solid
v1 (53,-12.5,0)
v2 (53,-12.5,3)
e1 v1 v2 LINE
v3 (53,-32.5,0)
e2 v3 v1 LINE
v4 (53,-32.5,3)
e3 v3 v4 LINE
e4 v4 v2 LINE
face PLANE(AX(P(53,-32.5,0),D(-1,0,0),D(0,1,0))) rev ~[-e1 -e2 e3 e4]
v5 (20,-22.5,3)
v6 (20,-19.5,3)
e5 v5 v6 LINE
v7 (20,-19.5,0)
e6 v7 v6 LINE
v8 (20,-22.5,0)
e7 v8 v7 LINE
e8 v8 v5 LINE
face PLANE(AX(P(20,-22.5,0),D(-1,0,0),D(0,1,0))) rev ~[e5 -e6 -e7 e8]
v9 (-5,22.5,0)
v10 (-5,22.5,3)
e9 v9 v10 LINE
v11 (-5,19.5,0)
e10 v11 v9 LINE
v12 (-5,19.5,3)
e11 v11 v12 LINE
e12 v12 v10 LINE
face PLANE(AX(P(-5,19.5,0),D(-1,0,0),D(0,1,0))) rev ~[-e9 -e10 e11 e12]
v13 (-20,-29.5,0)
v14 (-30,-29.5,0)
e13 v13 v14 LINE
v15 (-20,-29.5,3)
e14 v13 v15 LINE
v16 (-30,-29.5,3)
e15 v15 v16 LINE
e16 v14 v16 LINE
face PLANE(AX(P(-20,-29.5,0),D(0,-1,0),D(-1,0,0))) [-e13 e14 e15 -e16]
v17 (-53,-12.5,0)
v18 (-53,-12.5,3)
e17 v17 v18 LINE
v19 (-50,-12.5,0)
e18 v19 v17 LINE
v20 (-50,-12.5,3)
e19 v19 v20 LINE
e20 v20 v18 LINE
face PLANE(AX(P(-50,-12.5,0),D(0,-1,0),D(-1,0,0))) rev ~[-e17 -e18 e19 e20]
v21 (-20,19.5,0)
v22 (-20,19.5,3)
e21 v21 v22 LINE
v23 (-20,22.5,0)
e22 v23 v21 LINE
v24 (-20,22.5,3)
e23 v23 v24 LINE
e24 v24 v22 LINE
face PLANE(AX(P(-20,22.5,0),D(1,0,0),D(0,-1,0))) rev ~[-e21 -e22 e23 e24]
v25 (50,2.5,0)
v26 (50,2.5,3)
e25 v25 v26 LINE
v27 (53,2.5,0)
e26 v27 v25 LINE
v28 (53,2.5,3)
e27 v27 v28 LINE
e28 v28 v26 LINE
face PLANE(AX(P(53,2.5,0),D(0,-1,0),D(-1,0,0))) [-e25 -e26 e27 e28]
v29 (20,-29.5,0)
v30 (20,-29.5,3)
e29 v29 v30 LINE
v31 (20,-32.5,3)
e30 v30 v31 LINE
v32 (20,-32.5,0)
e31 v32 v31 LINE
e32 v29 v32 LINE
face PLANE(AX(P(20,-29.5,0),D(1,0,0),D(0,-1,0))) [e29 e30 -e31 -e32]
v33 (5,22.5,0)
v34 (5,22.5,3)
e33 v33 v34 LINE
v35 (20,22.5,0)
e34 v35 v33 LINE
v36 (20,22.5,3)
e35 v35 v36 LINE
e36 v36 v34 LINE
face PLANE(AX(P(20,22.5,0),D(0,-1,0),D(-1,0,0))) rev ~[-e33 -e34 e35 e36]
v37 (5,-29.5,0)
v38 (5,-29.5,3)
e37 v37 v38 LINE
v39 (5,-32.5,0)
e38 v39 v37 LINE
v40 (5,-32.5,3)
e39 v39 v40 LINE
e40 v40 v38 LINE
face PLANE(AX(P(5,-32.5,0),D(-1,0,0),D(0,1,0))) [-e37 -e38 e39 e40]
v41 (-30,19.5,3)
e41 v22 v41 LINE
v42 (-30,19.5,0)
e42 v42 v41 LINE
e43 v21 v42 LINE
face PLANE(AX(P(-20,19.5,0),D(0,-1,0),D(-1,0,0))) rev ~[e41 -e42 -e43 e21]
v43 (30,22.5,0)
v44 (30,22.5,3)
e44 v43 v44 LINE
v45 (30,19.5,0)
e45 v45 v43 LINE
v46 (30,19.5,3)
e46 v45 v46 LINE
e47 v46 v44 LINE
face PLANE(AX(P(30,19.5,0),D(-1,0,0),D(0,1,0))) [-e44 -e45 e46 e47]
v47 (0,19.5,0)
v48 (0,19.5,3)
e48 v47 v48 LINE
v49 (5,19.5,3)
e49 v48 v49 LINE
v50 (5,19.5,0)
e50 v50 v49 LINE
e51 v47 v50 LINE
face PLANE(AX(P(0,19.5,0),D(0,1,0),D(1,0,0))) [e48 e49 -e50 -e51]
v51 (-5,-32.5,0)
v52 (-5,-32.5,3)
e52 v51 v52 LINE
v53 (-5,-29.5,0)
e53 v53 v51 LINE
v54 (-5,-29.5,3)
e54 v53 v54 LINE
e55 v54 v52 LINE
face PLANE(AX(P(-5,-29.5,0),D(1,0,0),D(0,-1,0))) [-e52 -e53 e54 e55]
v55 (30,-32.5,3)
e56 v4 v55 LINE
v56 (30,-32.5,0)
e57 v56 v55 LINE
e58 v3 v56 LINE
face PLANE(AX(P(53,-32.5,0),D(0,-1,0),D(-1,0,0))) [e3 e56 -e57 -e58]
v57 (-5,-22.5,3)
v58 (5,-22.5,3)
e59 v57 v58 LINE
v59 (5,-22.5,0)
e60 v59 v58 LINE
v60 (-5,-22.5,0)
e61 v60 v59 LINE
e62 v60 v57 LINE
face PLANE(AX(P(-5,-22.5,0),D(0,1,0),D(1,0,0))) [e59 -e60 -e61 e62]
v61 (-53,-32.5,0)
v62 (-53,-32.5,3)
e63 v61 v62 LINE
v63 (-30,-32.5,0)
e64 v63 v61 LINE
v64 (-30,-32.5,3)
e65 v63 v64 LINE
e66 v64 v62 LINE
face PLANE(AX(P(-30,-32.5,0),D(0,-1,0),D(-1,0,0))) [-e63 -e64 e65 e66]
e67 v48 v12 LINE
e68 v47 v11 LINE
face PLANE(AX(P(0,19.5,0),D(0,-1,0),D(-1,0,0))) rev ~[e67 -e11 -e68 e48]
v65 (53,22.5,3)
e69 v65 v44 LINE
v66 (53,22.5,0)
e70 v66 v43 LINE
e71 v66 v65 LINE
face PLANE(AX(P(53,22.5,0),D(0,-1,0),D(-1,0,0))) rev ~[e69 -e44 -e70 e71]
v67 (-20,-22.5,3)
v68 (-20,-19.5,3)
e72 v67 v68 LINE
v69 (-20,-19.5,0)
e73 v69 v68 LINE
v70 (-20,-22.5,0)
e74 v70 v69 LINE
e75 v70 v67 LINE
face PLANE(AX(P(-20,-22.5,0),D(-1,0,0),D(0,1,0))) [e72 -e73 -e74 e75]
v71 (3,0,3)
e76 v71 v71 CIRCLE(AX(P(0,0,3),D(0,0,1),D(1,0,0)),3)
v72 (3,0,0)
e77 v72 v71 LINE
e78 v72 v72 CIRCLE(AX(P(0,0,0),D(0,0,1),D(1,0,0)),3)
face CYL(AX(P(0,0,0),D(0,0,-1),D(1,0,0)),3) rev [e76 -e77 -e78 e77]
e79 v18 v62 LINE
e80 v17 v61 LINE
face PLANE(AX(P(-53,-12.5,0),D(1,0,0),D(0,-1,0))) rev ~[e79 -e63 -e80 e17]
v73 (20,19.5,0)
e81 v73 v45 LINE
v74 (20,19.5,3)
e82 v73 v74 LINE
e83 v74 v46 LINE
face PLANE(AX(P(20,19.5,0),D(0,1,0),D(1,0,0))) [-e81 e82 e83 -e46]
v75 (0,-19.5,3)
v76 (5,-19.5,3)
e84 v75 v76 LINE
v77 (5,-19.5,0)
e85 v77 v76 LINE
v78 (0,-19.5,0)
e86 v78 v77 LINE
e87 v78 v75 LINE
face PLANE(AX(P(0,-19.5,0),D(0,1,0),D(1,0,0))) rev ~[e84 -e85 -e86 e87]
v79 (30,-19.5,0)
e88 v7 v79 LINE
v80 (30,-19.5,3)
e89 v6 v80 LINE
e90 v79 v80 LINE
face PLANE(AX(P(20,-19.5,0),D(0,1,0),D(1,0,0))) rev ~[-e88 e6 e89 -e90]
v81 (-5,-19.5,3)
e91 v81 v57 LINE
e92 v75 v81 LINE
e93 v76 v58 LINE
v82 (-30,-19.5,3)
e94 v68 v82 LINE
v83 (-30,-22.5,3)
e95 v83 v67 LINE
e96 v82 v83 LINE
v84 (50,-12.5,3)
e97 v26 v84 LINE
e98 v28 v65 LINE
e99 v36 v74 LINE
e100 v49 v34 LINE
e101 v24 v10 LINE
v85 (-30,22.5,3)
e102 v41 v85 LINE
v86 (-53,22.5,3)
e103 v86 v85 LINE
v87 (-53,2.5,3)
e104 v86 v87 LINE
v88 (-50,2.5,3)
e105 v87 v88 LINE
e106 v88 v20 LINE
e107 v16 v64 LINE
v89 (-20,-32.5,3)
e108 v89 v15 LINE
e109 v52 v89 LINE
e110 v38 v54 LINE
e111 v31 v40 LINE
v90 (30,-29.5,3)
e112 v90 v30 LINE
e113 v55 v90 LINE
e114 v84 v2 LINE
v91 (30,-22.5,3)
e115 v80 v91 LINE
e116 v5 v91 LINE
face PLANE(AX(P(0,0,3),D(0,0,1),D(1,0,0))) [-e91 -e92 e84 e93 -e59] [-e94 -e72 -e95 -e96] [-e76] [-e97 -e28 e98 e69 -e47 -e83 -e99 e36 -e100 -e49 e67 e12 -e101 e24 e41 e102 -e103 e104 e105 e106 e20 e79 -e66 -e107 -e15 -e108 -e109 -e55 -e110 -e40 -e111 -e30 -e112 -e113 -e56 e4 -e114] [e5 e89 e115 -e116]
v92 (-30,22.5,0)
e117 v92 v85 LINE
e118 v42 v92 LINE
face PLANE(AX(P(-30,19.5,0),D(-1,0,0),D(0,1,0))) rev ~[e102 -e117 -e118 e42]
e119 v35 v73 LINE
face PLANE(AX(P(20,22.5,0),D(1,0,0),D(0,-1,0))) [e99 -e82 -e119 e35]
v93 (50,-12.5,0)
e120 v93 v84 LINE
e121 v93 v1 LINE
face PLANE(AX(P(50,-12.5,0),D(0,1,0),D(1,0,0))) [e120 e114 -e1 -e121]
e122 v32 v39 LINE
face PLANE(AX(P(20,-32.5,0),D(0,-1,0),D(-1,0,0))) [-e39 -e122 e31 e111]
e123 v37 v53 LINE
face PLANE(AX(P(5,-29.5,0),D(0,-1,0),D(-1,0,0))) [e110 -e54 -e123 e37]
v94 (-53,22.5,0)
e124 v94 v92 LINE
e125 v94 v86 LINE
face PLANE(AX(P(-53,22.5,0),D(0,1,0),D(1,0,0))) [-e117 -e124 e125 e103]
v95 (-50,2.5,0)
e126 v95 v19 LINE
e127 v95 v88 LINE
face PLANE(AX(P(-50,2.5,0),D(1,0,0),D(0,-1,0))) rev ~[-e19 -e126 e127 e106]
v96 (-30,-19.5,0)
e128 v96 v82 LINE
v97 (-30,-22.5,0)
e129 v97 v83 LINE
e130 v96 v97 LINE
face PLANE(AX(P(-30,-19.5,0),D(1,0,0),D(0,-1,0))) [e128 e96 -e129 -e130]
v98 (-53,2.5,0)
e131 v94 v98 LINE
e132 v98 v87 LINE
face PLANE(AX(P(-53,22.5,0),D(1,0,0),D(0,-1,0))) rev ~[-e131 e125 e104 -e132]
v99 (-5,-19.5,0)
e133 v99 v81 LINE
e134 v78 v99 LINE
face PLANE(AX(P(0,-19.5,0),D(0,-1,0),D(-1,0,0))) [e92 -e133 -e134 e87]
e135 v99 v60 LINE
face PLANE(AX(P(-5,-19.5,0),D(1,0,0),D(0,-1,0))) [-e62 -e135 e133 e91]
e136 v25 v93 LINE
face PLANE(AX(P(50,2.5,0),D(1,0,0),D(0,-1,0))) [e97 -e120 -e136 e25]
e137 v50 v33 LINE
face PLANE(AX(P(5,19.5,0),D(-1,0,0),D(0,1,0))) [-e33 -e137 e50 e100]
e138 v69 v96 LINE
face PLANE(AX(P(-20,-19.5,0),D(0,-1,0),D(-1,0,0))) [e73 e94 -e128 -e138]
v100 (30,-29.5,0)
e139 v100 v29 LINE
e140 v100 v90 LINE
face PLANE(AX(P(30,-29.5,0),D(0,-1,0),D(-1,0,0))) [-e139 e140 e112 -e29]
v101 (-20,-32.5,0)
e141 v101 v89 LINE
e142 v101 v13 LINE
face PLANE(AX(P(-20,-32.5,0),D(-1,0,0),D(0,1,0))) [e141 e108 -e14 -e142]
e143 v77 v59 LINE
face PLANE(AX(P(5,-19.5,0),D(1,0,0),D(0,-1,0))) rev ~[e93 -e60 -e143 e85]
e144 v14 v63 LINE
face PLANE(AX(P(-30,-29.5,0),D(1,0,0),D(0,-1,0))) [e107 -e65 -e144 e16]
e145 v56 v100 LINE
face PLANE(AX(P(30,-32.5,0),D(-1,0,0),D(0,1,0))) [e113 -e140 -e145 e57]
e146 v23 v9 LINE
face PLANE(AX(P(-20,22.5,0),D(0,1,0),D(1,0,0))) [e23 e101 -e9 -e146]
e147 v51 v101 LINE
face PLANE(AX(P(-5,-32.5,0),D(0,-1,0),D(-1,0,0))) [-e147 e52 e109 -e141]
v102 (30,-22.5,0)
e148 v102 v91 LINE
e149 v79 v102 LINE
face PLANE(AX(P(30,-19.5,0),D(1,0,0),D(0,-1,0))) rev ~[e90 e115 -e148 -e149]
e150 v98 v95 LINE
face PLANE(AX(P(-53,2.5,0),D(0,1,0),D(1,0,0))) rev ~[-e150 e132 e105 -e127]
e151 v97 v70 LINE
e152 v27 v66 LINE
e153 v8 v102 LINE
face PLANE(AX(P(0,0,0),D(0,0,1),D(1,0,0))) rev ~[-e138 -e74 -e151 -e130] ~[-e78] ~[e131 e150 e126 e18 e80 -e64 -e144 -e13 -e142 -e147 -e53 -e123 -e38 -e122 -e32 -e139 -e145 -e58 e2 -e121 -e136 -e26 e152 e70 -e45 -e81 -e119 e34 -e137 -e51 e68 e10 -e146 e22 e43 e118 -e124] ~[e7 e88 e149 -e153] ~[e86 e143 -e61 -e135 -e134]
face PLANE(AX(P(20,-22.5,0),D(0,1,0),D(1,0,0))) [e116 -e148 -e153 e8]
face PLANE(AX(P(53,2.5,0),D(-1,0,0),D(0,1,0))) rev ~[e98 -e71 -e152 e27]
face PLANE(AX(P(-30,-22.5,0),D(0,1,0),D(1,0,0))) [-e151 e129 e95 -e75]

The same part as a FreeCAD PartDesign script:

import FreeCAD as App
import Part
import Sketcher
Q = App.Units.Quantity

doc = App.newDocument("Part")
params = doc.addObject("Spreadsheet::Sheet", "Params")
for row, (alias, value) in enumerate([
    ("sketch1_diameter", "6 mm"),
    ("sketch1_width", "23 mm"),
    ("sketch1_width2", "3 mm"),
    ("sketch1_width3", "10 mm"),
    ("sketch1_width4", "15 mm"),
    ("pad1_length", "3 mm"),
], start=1):
    params.set(f"A{row}", alias)
    params.set(f"B{row}", "=" + value)
    params.setAlias(f"B{row}", alias)

body = doc.addObject("PartDesign::Body", "Body")

# Sketch on XY plane
sketch1 = body.newObject("Sketcher::SketchObject", "Sketch")
sketch1.AttachmentSupport = (doc.getObject("XY_Plane"), [""])
sketch1.MapMode = "FlatFace"
sketch1.addGeometry([
    Part.LineSegment(App.Vector(-30, 22.5, 0), App.Vector(-53, 22.5, 0)),  # 0
    Part.LineSegment(App.Vector(-53, 22.5, 0), App.Vector(-53, 2.5, 0)),  # 1
    Part.LineSegment(App.Vector(-53, 2.5, 0), App.Vector(-50, 2.5, 0)),  # 2
    Part.LineSegment(App.Vector(-50, 2.5, 0), App.Vector(-50, -12.5, 0)),  # 3
    Part.LineSegment(App.Vector(-50, -12.5, 0), App.Vector(-53, -12.5, 0)),  # 4
    Part.LineSegment(App.Vector(-53, -12.5, 0), App.Vector(-53, -32.5, 0)),  # 5
    Part.LineSegment(App.Vector(-53, -32.5, 0), App.Vector(-30, -32.5, 0)),  # 6
    Part.LineSegment(App.Vector(-30, -32.5, 0), App.Vector(-30, -29.5, 0)),  # 7
    Part.LineSegment(App.Vector(-30, -29.5, 0), App.Vector(-20, -29.5, 0)),  # 8
    Part.LineSegment(App.Vector(-20, -29.5, 0), App.Vector(-20, -32.5, 0)),  # 9
    Part.LineSegment(App.Vector(-20, -32.5, 0), App.Vector(-5, -32.5, 0)),  # 10
    Part.LineSegment(App.Vector(-5, -32.5, 0), App.Vector(-5, -29.5, 0)),  # 11
    Part.LineSegment(App.Vector(-5, -29.5, 0), App.Vector(5, -29.5, 0)),  # 12
    Part.LineSegment(App.Vector(5, -29.5, 0), App.Vector(5, -32.5, 0)),  # 13
    Part.LineSegment(App.Vector(5, -32.5, 0), App.Vector(20, -32.5, 0)),  # 14
    Part.LineSegment(App.Vector(20, -32.5, 0), App.Vector(20, -29.5, 0)),  # 15
    Part.LineSegment(App.Vector(20, -29.5, 0), App.Vector(30, -29.5, 0)),  # 16
    Part.LineSegment(App.Vector(30, -29.5, 0), App.Vector(30, -32.5, 0)),  # 17
    Part.LineSegment(App.Vector(30, -32.5, 0), App.Vector(53, -32.5, 0)),  # 18
    Part.LineSegment(App.Vector(53, -32.5, 0), App.Vector(53, -12.5, 0)),  # 19
    Part.LineSegment(App.Vector(53, -12.5, 0), App.Vector(50, -12.5, 0)),  # 20
    Part.LineSegment(App.Vector(50, -12.5, 0), App.Vector(50, 2.5, 0)),  # 21
    Part.LineSegment(App.Vector(50, 2.5, 0), App.Vector(53, 2.5, 0)),  # 22
    Part.LineSegment(App.Vector(53, 2.5, 0), App.Vector(53, 22.5, 0)),  # 23
    Part.LineSegment(App.Vector(53, 22.5, 0), App.Vector(30, 22.5, 0)),  # 24
    Part.LineSegment(App.Vector(30, 22.5, 0), App.Vector(30, 19.5, 0)),  # 25
    Part.LineSegment(App.Vector(30, 19.5, 0), App.Vector(20, 19.5, 0)),  # 26
    Part.LineSegment(App.Vector(20, 19.5, 0), App.Vector(20, 22.5, 0)),  # 27
    Part.LineSegment(App.Vector(20, 22.5, 0), App.Vector(5, 22.5, 0)),  # 28
    Part.LineSegment(App.Vector(5, 22.5, 0), App.Vector(5, 19.5, 0)),  # 29
    Part.LineSegment(App.Vector(5, 19.5, 0), App.Vector(-5, 19.5, 0)),  # 30
    Part.LineSegment(App.Vector(-5, 19.5, 0), App.Vector(-5, 22.5, 0)),  # 31
    Part.LineSegment(App.Vector(-5, 22.5, 0), App.Vector(-20, 22.5, 0)),  # 32
    Part.LineSegment(App.Vector(-20, 22.5, 0), App.Vector(-20, 19.5, 0)),  # 33
    Part.LineSegment(App.Vector(-20, 19.5, 0), App.Vector(-30, 19.5, 0)),  # 34
    Part.LineSegment(App.Vector(-30, 19.5, 0), App.Vector(-30, 22.5, 0)),  # 35
    Part.LineSegment(App.Vector(-20, -19.5, 0), App.Vector(-20, -22.5, 0)),  # 36
    Part.LineSegment(App.Vector(-20, -22.5, 0), App.Vector(-30, -22.5, 0)),  # 37
    Part.LineSegment(App.Vector(-30, -22.5, 0), App.Vector(-30, -19.5, 0)),  # 38
    Part.LineSegment(App.Vector(-30, -19.5, 0), App.Vector(-20, -19.5, 0)),  # 39
    Part.LineSegment(App.Vector(-5, -19.5, 0), App.Vector(5, -19.5, 0)),  # 40
    Part.LineSegment(App.Vector(5, -19.5, 0), App.Vector(5, -22.5, 0)),  # 41
    Part.LineSegment(App.Vector(5, -22.5, 0), App.Vector(-5, -22.5, 0)),  # 42
    Part.LineSegment(App.Vector(-5, -22.5, 0), App.Vector(-5, -19.5, 0)),  # 43
    Part.LineSegment(App.Vector(30, -22.5, 0), App.Vector(20, -22.5, 0)),  # 44
    Part.LineSegment(App.Vector(20, -22.5, 0), App.Vector(20, -19.5, 0)),  # 45
    Part.LineSegment(App.Vector(20, -19.5, 0), App.Vector(30, -19.5, 0)),  # 46
    Part.LineSegment(App.Vector(30, -19.5, 0), App.Vector(30, -22.5, 0)),  # 47
    Part.Circle(App.Vector(0, 0, 0), App.Vector(0, 0, 1), 3),  # 48
], False)
sketch1.addConstraint([
    Sketcher.Constraint("Coincident", 0, 2, 1, 1),
    Sketcher.Constraint("Coincident", 1, 2, 2, 1),
    Sketcher.Constraint("Coincident", 2, 2, 3, 1),
    Sketcher.Constraint("Coincident", 3, 2, 4, 1),
    Sketcher.Constraint("Coincident", 4, 2, 5, 1),
    Sketcher.Constraint("Coincident", 5, 2, 6, 1),
    Sketcher.Constraint("Coincident", 6, 2, 7, 1),
    Sketcher.Constraint("Coincident", 7, 2, 8, 1),
    Sketcher.Constraint("Coincident", 8, 2, 9, 1),
    Sketcher.Constraint("Coincident", 9, 2, 10, 1),
    Sketcher.Constraint("Coincident", 10, 2, 11, 1),
    Sketcher.Constraint("Coincident", 11, 2, 12, 1),
    Sketcher.Constraint("Coincident", 12, 2, 13, 1),
    Sketcher.Constraint("Coincident", 13, 2, 14, 1),
    Sketcher.Constraint("Coincident", 14, 2, 15, 1),
    Sketcher.Constraint("Coincident", 15, 2, 16, 1),
    Sketcher.Constraint("Coincident", 16, 2, 17, 1),
    Sketcher.Constraint("Coincident", 17, 2, 18, 1),
    Sketcher.Constraint("Coincident", 18, 2, 19, 1),
    Sketcher.Constraint("Coincident", 19, 2, 20, 1),
    Sketcher.Constraint("Coincident", 20, 2, 21, 1),
    Sketcher.Constraint("Coincident", 21, 2, 22, 1),
    Sketcher.Constraint("Coincident", 22, 2, 23, 1),
    Sketcher.Constraint("Coincident", 23, 2, 24, 1),
    Sketcher.Constraint("Coincident", 24, 2, 25, 1),
    Sketcher.Constraint("Coincident", 25, 2, 26, 1),
    Sketcher.Constraint("Coincident", 26, 2, 27, 1),
    Sketcher.Constraint("Coincident", 27, 2, 28, 1),
    Sketcher.Constraint("Coincident", 28, 2, 29, 1),
    Sketcher.Constraint("Coincident", 29, 2, 30, 1),
    Sketcher.Constraint("Coincident", 30, 2, 31, 1),
    Sketcher.Constraint("Coincident", 31, 2, 32, 1),
    Sketcher.Constraint("Coincident", 32, 2, 33, 1),
    Sketcher.Constraint("Coincident", 33, 2, 34, 1),
    Sketcher.Constraint("Coincident", 34, 2, 35, 1),
    Sketcher.Constraint("Coincident", 35, 2, 0, 1),
    Sketcher.Constraint("Coincident", 36, 2, 37, 1),
    Sketcher.Constraint("Coincident", 37, 2, 38, 1),
    Sketcher.Constraint("Coincident", 38, 2, 39, 1),
    Sketcher.Constraint("Coincident", 39, 2, 36, 1),
    Sketcher.Constraint("Coincident", 40, 2, 41, 1),
    Sketcher.Constraint("Coincident", 41, 2, 42, 1),
    Sketcher.Constraint("Coincident", 42, 2, 43, 1),
    Sketcher.Constraint("Coincident", 43, 2, 40, 1),
    Sketcher.Constraint("Coincident", 44, 2, 45, 1),
    Sketcher.Constraint("Coincident", 45, 2, 46, 1),
    Sketcher.Constraint("Coincident", 46, 2, 47, 1),
    Sketcher.Constraint("Coincident", 47, 2, 44, 1),
    Sketcher.Constraint("Horizontal", 0),
    Sketcher.Constraint("Vertical", 1),
    Sketcher.Constraint("Horizontal", 2),
    Sketcher.Constraint("Vertical", 3),
    Sketcher.Constraint("Horizontal", 4),
    Sketcher.Constraint("Vertical", 5),
    Sketcher.Constraint("Horizontal", 6),
    Sketcher.Constraint("Vertical", 7),
    Sketcher.Constraint("Horizontal", 8),
    Sketcher.Constraint("Vertical", 9),
    Sketcher.Constraint("Horizontal", 10),
    Sketcher.Constraint("Vertical", 11),
    Sketcher.Constraint("Horizontal", 12),
    Sketcher.Constraint("Vertical", 13),
    Sketcher.Constraint("Horizontal", 14),
    Sketcher.Constraint("Vertical", 15),
    Sketcher.Constraint("Horizontal", 16),
    Sketcher.Constraint("Vertical", 17),
    Sketcher.Constraint("Horizontal", 18),
    Sketcher.Constraint("Vertical", 19),
    Sketcher.Constraint("Horizontal", 20),
    Sketcher.Constraint("Vertical", 21),
    Sketcher.Constraint("Horizontal", 22),
    Sketcher.Constraint("Vertical", 23),
    Sketcher.Constraint("Horizontal", 24),
    Sketcher.Constraint("Vertical", 25),
    Sketcher.Constraint("Horizontal", 26),
    Sketcher.Constraint("Vertical", 27),
    Sketcher.Constraint("Horizontal", 28),
    Sketcher.Constraint("Vertical", 29),
    Sketcher.Constraint("Horizontal", 30),
    Sketcher.Constraint("Vertical", 31),
    Sketcher.Constraint("Horizontal", 32),
    Sketcher.Constraint("Vertical", 33),
    Sketcher.Constraint("Horizontal", 34),
    Sketcher.Constraint("Vertical", 35),
    Sketcher.Constraint("Vertical", 36),
    Sketcher.Constraint("Horizontal", 37),
    Sketcher.Constraint("Vertical", 38),
    Sketcher.Constraint("Horizontal", 39),
    Sketcher.Constraint("Horizontal", 40),
    Sketcher.Constraint("Vertical", 41),
    Sketcher.Constraint("Horizontal", 42),
    Sketcher.Constraint("Vertical", 43),
    Sketcher.Constraint("Horizontal", 44),
    Sketcher.Constraint("Vertical", 45),
    Sketcher.Constraint("Horizontal", 46),
    Sketcher.Constraint("Vertical", 47),
    Sketcher.Constraint("Coincident", 48, 3, -1, 1),
    Sketcher.Constraint("Symmetric", 27, 2, 36, 2, -1, 1),
    Sketcher.Constraint("Symmetric", 24, 2, 37, 2, -1, 1),
    Sketcher.Constraint("Symmetric", 30, 2, 40, 2, -1, 1),
    Sketcher.Constraint("Symmetric", 28, 2, 42, 2, -1, 1),
    Sketcher.Constraint("Symmetric", 32, 2, 44, 2, -1, 1),
    Sketcher.Constraint("Symmetric", 34, 2, 46, 2, -1, 1),
    Sketcher.Constraint("Symmetric", 10, 2, 13, 2, -2),
    Sketcher.Constraint("Symmetric", 8, 2, 15, 2, -2),
    Sketcher.Constraint("Symmetric", 6, 2, 17, 2, -2),
    Sketcher.Constraint("Symmetric", 4, 2, 19, 2, -2),
    Sketcher.Constraint("Symmetric", 2, 2, 21, 2, -2),
    Sketcher.Constraint("Symmetric", 0, 2, 23, 2, -2),
    Sketcher.Constraint("Symmetric", 28, 2, 31, 2, -2),
    Sketcher.Constraint("Symmetric", 26, 2, 33, 2, -2),
    Sketcher.Constraint("Symmetric", 38, 2, 46, 2, -2),
    Sketcher.Constraint("Horizontal", 6, 2, 9, 2),
    Sketcher.Constraint("Horizontal", 8, 2, 11, 2),
    Sketcher.Constraint("Horizontal", 26, 2, 29, 2),
    Sketcher.Constraint("Vertical", 1, 2, 4, 2),
    Sketcher.Constraint("Vertical", 17, 2, 24, 2),
    Sketcher.Constraint("Vertical", 15, 2, 26, 2),
    Sketcher.Constraint("Vertical", 13, 2, 28, 2),
    Sketcher.Constraint("Equal", 8, 12),
    Sketcher.Constraint("Equal", 32, 3),
    Sketcher.Constraint("Equal", 1, 5),
    Sketcher.Constraint("Equal", 22, 7),
    Sketcher.Constraint("Equal", 17, 25),
    Sketcher.Constraint("Diameter", 48, Q("6 mm")),
    Sketcher.Constraint("DistanceX", 0, 2, 0, 1, Q("23 mm")),
    Sketcher.Constraint("DistanceX", 2, 1, 2, 2, Q("3 mm")),
    Sketcher.Constraint("DistanceX", 8, 1, 8, 2, Q("10 mm")),
    Sketcher.Constraint("DistanceX", 10, 1, 10, 2, Q("15 mm")),
    Sketcher.Constraint("DistanceY", 1, 2, 1, 1, Q("20 mm")),
    Sketcher.Constraint("DistanceY", 8, 2, 36, 2, Q("7 mm")),
])
sketch1.setExpression("Constraints[124]", "Params.sketch1_diameter")
sketch1.setExpression("Constraints[125]", "Params.sketch1_width")
sketch1.setExpression("Constraints[126]", "Params.sketch1_width2")
sketch1.setExpression("Constraints[127]", "Params.sketch1_width3")
sketch1.setExpression("Constraints[128]", "Params.sketch1_width4")
pad1 = body.newObject("PartDesign::Pad", "Pad")
pad1.Profile = sketch1
pad1.setExpression("Length", "Params.pad1_length")

doc.recompute()
